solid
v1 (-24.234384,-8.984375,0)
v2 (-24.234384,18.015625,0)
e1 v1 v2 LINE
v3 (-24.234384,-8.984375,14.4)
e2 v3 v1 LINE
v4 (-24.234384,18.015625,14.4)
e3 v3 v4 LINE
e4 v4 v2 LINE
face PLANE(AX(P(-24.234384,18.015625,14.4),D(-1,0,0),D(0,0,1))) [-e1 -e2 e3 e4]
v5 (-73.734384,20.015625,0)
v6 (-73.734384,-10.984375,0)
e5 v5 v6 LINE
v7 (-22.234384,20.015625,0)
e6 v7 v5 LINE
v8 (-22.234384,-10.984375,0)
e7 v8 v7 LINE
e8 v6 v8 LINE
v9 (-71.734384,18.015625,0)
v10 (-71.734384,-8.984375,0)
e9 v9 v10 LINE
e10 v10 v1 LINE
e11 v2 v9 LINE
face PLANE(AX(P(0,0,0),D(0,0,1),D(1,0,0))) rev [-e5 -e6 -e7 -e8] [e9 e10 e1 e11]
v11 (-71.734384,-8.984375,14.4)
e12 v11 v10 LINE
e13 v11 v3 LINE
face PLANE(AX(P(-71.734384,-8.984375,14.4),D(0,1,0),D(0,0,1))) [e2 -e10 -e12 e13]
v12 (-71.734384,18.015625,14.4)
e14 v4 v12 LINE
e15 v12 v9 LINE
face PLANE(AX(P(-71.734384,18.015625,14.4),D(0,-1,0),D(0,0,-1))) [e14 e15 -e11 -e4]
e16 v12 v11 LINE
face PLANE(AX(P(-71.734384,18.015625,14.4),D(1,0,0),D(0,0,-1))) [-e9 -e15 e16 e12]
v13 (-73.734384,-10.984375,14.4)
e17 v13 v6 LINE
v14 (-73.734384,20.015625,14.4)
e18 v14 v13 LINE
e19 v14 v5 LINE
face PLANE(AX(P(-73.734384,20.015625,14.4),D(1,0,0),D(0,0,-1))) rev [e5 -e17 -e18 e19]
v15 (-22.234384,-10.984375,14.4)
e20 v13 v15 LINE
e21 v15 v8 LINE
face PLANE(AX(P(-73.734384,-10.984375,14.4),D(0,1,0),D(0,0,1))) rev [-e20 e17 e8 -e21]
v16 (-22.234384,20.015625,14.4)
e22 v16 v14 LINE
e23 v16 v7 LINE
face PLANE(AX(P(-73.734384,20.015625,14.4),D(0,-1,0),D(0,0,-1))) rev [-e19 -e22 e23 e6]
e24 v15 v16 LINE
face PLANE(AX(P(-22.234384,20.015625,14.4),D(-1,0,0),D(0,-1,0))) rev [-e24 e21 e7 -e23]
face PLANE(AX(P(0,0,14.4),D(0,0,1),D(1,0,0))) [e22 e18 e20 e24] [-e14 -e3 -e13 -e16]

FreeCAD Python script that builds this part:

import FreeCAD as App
import Part
import Sketcher
from FreeCAD import Vector


def add_polygon(sketch, points):
    """Adds a closed chain of lines whose ends are joined by coincident constraints."""
    first, n = sketch.GeometryCount, len(points)
    for a, b in zip(points, points[1:] + points[:1]):
        sketch.addGeometry(Part.LineSegment(App.Vector(*a, 0), App.Vector(*b, 0)), False)
    for i in range(n):
        sketch.addConstraint(Sketcher.Constraint("Coincident", first + i, 2, first + (i + 1) % n, 1))

doc = App.newDocument("Part")
params = doc.addObject("Spreadsheet::Sheet", "Params")
for row, (alias, value) in enumerate([
    ("sketch1_height", "31 mm"),
    ("sketch1_height2", "27 mm"),
    ("sketch1_width", "51.5 mm"),
    ("sketch1_width2", "47.5 mm"),
    ("pad1_length", "14.4 mm"),
], start=1):
    params.set(f"A{row}", alias)
    params.set(f"B{row}", "=" + value)
    params.setAlias(f"B{row}", alias)

body = doc.addObject("PartDesign::Body", "Body")

# Sketch on XY plane
sketch1 = body.newObject("Sketcher::SketchObject", "Sketch")
sketch1.AttachmentSupport = (doc.getObject("XY_Plane"), [""])
sketch1.MapMode = "FlatFace"
add_polygon(sketch1, [(-74, 20), (-74, -11), (-22, -11), (-22, 20)])  # lines 0-3
add_polygon(sketch1, [(-24, -9), (-72, -9), (-72, 18), (-24, 18)])  # lines 4-7
sketch1.addConstraint(Sketcher.Constraint("Vertical", 0))
sketch1.addConstraint(Sketcher.Constraint("Horizontal", 1))
sketch1.addConstraint(Sketcher.Constraint("Vertical", 2))
sketch1.addConstraint(Sketcher.Constraint("Horizontal", 3))
sketch1.addConstraint(Sketcher.Constraint("Horizontal", 4))
sketch1.addConstraint(Sketcher.Constraint("Vertical", 5))
sketch1.addConstraint(Sketcher.Constraint("Horizontal", 6))
sketch1.addConstraint(Sketcher.Constraint("Vertical", 7))
sketch1.addConstraint(Sketcher.Constraint("DistanceY", 0, 2, 0, 1, 31.0))
sketch1.addConstraint(Sketcher.Constraint("DistanceY", 5, 1, 5, 2, 27.0))
sketch1.addConstraint(Sketcher.Constraint("DistanceX", 1, 1, 1, 2, 51.5))
sketch1.addConstraint(Sketcher.Constraint("DistanceX", 4, 2, 4, 1, 47.5))
sketch1.addConstraint(Sketcher.Constraint("DistanceX", 0, 2, 4, 2, 2.0))
sketch1.addConstraint(Sketcher.Constraint("DistanceY", 0, 2, 4, 2, 2.0))
sketch1.addConstraint(Sketcher.Constraint("DistanceX", 0, 2, -1, 1, 73.734384))
sketch1.addConstraint(Sketcher.Constraint("DistanceY", 0, 2, -1, 1, 10.984375))
sketch1.setExpression("Constraints[16]", "Params.sketch1_height")
sketch1.setExpression("Constraints[17]", "Params.sketch1_height2")
sketch1.setExpression("Constraints[18]", "Params.sketch1_width")
sketch1.setExpression("Constraints[19]", "Params.sketch1_width2")
pad1 = body.newObject("PartDesign::Pad", "Pad")
pad1.Profile = sketch1
pad1.setExpression("Length", "Params.pad1_length")

doc.recompute()
